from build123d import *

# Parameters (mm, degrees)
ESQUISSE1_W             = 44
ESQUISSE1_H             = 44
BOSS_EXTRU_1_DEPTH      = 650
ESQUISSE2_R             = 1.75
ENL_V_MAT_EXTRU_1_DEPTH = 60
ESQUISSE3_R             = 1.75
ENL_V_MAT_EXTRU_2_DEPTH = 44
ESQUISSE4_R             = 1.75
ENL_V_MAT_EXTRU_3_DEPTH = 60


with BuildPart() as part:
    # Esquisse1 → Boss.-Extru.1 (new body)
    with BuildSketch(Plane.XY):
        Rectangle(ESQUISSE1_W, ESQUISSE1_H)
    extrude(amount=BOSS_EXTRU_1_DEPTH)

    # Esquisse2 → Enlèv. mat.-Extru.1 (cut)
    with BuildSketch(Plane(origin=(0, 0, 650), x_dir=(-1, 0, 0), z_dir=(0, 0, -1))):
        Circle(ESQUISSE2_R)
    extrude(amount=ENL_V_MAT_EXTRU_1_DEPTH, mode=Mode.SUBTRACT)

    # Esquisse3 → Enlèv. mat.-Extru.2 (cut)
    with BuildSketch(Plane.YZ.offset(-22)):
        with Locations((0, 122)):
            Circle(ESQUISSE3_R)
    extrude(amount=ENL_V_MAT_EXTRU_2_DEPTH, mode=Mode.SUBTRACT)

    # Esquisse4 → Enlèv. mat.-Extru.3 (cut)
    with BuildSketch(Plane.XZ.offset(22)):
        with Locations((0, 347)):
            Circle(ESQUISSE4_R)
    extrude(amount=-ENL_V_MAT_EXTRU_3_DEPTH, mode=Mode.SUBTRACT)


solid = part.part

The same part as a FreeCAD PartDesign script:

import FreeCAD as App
import Part
import Sketcher
from FreeCAD import Vector

doc = App.newDocument("Part")
body = doc.addObject("PartDesign::Body", "Body")

# Sketch on XY plane
sketch1 = body.newObject("Sketcher::SketchObject", "Sketch")
sketch1.AttachmentSupport = (doc.getObject("XY_Plane"), [""])
sketch1.MapMode = "FlatFace"
sketch1.addGeometry([
    Part.LineSegment(Vector(-22, 22, 0), Vector(-22, -22, 0)),
    Part.LineSegment(Vector(-22, -22, 0), Vector(22, -22, 0)),
    Part.LineSegment(Vector(22, -22, 0), Vector(22, 22, 0)),
    Part.LineSegment(Vector(22, 22, 0), Vector(-22, 22, 0)),
], False)
sketch1.addConstraint([
    Sketcher.Constraint("Coincident", 0, 2, 1, 1),
    Sketcher.Constraint("Coincident", 1, 2, 2, 1),
    Sketcher.Constraint("Coincident", 2, 2, 3, 1),
    Sketcher.Constraint("Coincident", 3, 2, 0, 1),
    Sketcher.Constraint("Vertical", 0),
    Sketcher.Constraint("Horizontal", 1),
    Sketcher.Constraint("Vertical", 2),
    Sketcher.Constraint("Horizontal", 3),
    Sketcher.Constraint("Symmetric", 0, 2, 2, 2, -1, 1),
    Sketcher.Constraint("Equal", 3, 0),
    Sketcher.Constraint("DistanceX", 1, 1, 1, 2, 44.0),
])
pad1 = body.newObject("PartDesign::Pad", "Pad")
pad1.Profile = sketch1
pad1.Length = 650

# Sketch on XY plane
sketch2 = body.newObject("Sketcher::SketchObject", "Sketch001")
sketch2.AttachmentSupport = (doc.getObject("XY_Plane"), [""])
sketch2.MapMode = "FlatFace"
sketch2.AttachmentOffset = App.Placement(Vector(0, 0, 650), App.Rotation())
sketch2.addGeometry(Part.Circle(Vector(0, 0, 0), Vector(0, 0, 1), 1.8), False)
sketch2.addConstraint([
    Sketcher.Constraint("Coincident", 0, 3, -1, 1),
    Sketcher.Constraint("Diameter", 0, 3.5),
])
pocket1 = body.newObject("PartDesign::Pocket", "Pocket")
pocket1.Profile = sketch2
pocket1.Length = 60

# Sketch on YZ plane
sketch3 = body.newObject("Sketcher::SketchObject", "Sketch002")
sketch3.AttachmentSupport = (doc.getObject("YZ_Plane"), [""])
sketch3.MapMode = "FlatFace"
sketch3.AttachmentOffset = App.Placement(Vector(0, 0, -22), App.Rotation())
sketch3.addGeometry(Part.Circle(Vector(0, 122, 0), Vector(0, 0, 1), 1.8), False)
sketch3.addConstraint([
    Sketcher.Constraint("PointOnObject", 0, 3, -2),
    Sketcher.Constraint("Diameter", 0, 3.5),
    Sketcher.Constraint("DistanceY", -1, 1, 0, 3, 122.0),
])
pocket2 = body.newObject("PartDesign::Pocket", "Pocket001")
pocket2.Profile = sketch3
pocket2.Length = 44
pocket2.Reversed = True

# Sketch on XZ plane
sketch4 = body.newObject("Sketcher::SketchObject", "Sketch003")
sketch4.AttachmentSupport = (doc.getObject("XZ_Plane"), [""])
sketch4.MapMode = "FlatFace"
sketch4.AttachmentOffset = App.Placement(Vector(0, 0, 22), App.Rotation())
sketch4.addGeometry(Part.Circle(Vector(0, 347, 0), Vector(0, 0, 1), 1.8), False)
sketch4.addConstraint([
    Sketcher.Constraint("PointOnObject", 0, 3, -2),
    Sketcher.Constraint("Diameter", 0, 3.5),
    Sketcher.Constraint("DistanceY", -1, 1, 0, 3, 347.0),
])
pocket3 = body.newObject("PartDesign::Pocket", "Pocket002")
pocket3.Profile = sketch4
pocket3.Length = 60

doc.recompute()
